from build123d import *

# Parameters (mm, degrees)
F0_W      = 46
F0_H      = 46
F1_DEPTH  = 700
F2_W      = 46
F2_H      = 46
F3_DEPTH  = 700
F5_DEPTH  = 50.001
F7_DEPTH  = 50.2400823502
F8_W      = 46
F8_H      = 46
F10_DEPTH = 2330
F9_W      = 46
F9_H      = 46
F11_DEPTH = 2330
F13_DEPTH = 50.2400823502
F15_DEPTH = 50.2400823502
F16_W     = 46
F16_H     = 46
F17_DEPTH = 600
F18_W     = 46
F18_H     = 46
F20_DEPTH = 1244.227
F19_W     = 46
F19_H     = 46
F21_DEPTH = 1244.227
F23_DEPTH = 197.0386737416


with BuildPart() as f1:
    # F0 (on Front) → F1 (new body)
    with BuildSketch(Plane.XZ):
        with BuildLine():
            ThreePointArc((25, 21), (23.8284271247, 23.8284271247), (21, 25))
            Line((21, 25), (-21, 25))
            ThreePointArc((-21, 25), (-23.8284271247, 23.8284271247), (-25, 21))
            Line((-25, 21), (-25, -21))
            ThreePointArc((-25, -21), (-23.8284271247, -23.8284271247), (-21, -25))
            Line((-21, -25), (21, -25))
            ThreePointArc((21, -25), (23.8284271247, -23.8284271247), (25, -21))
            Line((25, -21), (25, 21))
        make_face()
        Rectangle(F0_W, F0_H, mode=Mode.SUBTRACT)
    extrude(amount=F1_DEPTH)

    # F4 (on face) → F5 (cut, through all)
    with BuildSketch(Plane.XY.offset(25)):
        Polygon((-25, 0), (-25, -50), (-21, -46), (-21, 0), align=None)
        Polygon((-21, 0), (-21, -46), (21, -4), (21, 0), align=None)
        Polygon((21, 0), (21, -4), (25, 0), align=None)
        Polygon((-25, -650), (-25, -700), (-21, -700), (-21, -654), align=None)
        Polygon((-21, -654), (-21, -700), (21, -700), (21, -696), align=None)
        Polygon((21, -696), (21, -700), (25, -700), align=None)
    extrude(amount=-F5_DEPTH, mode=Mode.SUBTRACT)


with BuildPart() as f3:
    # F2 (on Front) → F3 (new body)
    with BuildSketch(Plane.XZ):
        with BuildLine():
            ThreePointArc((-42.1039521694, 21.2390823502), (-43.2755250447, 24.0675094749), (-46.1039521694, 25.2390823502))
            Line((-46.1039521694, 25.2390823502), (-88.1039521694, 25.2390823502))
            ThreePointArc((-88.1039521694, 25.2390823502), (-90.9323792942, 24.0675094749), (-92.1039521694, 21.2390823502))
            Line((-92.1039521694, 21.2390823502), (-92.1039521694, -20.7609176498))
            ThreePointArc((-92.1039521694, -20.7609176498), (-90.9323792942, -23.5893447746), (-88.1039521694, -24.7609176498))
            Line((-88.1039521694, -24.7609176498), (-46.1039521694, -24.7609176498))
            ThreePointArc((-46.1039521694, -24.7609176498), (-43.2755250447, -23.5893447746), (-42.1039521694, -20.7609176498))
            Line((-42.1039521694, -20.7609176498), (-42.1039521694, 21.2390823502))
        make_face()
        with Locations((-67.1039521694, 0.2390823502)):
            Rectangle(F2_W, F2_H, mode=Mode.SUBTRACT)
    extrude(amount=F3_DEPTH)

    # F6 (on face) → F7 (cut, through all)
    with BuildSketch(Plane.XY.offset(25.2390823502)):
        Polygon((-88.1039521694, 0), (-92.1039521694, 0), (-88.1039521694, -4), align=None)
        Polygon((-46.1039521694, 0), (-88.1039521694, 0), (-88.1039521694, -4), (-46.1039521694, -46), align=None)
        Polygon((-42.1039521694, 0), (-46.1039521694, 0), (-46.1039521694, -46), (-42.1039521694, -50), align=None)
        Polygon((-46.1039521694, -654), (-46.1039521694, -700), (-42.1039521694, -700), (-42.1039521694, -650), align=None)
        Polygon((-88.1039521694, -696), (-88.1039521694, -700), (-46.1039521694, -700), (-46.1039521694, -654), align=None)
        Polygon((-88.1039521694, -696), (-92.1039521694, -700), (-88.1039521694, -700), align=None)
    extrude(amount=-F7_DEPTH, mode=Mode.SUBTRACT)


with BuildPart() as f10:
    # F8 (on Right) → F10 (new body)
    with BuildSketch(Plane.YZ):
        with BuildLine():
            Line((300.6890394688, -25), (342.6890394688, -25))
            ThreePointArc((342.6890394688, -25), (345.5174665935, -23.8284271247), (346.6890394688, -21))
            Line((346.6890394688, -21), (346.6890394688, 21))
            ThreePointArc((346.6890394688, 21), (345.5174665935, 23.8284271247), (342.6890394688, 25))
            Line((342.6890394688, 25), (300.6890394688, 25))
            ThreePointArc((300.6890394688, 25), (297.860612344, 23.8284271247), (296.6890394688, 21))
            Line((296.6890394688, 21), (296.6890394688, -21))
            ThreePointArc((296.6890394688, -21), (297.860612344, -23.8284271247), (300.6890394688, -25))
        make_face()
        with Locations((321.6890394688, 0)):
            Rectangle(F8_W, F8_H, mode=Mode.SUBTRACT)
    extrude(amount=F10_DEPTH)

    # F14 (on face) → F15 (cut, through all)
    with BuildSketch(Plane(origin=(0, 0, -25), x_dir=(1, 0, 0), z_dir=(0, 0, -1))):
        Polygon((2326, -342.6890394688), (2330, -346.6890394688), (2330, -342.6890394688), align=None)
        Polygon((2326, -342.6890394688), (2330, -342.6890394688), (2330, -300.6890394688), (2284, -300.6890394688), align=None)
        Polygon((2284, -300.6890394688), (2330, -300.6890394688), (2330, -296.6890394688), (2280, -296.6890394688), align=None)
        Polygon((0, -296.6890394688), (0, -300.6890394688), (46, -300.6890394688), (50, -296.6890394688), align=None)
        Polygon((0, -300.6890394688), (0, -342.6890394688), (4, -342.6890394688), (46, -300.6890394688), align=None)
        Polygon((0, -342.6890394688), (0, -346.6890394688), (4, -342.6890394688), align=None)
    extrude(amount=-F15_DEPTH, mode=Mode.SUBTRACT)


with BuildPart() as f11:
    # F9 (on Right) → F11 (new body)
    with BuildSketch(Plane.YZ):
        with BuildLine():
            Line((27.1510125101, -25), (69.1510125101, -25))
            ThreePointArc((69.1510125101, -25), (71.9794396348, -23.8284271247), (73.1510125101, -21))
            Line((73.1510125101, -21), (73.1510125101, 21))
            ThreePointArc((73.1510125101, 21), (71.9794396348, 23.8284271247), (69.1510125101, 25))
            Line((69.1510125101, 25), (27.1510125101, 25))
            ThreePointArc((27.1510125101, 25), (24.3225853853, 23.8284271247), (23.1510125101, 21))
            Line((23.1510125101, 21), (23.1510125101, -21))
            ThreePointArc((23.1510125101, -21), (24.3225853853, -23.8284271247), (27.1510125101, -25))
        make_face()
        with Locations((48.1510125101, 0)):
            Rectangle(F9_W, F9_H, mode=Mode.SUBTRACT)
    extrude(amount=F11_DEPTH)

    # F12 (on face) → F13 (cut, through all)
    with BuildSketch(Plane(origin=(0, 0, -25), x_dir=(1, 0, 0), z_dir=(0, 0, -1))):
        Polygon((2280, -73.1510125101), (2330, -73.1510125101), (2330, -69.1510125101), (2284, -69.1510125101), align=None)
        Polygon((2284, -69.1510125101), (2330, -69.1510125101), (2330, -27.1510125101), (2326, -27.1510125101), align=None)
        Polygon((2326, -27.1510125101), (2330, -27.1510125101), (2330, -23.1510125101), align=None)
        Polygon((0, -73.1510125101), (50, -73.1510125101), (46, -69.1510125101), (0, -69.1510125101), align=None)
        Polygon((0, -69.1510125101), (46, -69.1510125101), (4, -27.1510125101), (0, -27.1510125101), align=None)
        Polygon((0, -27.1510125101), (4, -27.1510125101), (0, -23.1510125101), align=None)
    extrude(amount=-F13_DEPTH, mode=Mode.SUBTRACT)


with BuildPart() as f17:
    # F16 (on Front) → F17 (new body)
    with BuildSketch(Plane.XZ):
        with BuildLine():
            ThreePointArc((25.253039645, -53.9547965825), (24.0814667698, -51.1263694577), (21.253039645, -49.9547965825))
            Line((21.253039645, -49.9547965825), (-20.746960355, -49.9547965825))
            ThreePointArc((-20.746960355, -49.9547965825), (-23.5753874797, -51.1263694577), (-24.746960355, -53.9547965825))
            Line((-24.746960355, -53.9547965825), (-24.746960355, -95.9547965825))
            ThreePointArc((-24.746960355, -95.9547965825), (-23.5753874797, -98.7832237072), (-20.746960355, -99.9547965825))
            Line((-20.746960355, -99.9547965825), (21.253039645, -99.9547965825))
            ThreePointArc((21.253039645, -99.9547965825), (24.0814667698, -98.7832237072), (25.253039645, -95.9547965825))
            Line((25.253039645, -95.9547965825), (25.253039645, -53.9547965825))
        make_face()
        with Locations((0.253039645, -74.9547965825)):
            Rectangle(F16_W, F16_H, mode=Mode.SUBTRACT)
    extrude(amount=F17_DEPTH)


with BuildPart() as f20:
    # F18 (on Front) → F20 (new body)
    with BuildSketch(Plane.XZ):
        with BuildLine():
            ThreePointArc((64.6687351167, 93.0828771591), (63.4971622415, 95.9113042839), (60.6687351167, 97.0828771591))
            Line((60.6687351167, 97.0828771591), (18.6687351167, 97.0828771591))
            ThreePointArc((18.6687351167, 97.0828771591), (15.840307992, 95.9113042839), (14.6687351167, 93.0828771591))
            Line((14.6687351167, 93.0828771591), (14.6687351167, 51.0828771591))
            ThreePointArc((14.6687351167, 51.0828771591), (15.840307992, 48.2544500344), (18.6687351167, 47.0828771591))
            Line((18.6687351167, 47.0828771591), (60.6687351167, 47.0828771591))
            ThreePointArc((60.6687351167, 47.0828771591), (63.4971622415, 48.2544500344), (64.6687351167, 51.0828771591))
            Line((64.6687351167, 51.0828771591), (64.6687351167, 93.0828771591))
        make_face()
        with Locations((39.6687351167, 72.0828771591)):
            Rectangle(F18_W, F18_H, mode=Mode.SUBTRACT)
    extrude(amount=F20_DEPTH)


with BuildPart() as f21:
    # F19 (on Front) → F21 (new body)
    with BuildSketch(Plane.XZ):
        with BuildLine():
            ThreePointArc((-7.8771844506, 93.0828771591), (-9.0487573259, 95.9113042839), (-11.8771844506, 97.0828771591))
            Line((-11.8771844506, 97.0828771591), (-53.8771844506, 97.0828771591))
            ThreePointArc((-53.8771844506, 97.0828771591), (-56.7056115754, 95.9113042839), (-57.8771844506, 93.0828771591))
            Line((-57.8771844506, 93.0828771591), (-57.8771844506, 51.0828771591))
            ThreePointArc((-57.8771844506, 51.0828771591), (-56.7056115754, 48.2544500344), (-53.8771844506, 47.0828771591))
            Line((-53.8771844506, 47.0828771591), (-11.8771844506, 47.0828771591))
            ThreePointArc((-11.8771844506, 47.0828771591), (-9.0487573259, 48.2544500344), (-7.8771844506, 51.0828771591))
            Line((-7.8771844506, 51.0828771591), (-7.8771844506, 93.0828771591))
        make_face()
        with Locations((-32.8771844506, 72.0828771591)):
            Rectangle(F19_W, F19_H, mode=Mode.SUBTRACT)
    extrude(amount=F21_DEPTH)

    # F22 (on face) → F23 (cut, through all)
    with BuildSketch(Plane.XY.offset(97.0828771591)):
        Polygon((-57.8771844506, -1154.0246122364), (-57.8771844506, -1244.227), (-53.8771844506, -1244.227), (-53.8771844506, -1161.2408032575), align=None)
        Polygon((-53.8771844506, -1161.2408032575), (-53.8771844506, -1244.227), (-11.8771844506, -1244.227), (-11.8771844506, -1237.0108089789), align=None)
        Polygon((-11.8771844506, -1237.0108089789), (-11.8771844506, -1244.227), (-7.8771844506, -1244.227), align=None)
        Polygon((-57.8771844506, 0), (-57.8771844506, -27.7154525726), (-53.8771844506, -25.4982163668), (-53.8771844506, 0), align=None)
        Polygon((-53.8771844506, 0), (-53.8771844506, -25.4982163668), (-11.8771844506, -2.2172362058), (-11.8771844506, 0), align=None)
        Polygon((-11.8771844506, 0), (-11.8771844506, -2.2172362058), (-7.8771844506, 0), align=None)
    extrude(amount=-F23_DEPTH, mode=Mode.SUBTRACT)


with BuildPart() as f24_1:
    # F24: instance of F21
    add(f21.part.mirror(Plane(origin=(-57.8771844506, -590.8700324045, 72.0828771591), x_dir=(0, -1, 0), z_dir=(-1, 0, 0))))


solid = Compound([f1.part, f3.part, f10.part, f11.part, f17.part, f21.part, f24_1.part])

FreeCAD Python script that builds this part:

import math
import FreeCAD as App
import Part
import Sketcher
Q = App.Units.Quantity

doc = App.newDocument("Part")
params = doc.addObject("Spreadsheet::Sheet", "Params")
for row, (alias, value) in enumerate([
    ("sketch1_radius", "4 mm"),
    ("sketch1_width", "42 mm"),
    ("sketch1_width2", "46 mm"),
    ("pad1_length", "700 mm"),
    ("sketch2_width", "50 mm"),
    ("sketch3_radius", "4 mm"),
    ("sketch3_width", "42 mm"),
    ("sketch3_width2", "46 mm"),
    ("pad2_length", "700 mm"),
    ("sketch4_width", "50 mm"),
    ("sketch5_radius", "4 mm"),
    ("sketch5_width", "42 mm"),
    ("sketch5_width2", "46 mm"),
    ("pad3_length", "2330 mm"),
    ("sketch6_width", "50 mm"),
    ("sketch7_radius", "4 mm"),
    ("sketch7_width", "42 mm"),
    ("sketch7_width2", "46 mm"),
    ("pad4_length", "2330 mm"),
    ("sketch8_width", "50 mm"),
    ("sketch9_radius", "4 mm"),
    ("sketch9_width", "42 mm"),
    ("sketch9_width2", "46 mm"),
    ("pad5_length", "600 mm"),
    ("sketch10_radius", "4 mm"),
    ("sketch10_width", "42 mm"),
    ("sketch10_width2", "46 mm"),
    ("pad6_length", "1244.227 mm"),
    ("sketch11_radius", "4 mm"),
    ("sketch11_width", "42 mm"),
    ("sketch11_width2", "46 mm"),
    ("pad7_length", "1244.227 mm"),
    ("sketch12_width", "50 mm"),
], start=1):
    params.set(f"A{row}", alias)
    params.set(f"B{row}", "=" + value)
    params.setAlias(f"B{row}", alias)

body = doc.addObject("PartDesign::Body", "Body")

sketch1 = body.newObject("Sketcher::SketchObject", "Sketch")
sketch1.AttachmentSupport = (doc.getObject("XZ_Plane"), [""])
sketch1.MapMode = "FlatFace"
sketch1.addGeometry(Part.ArcOfCircle(Part.Circle(App.Vector(21, 21, 0), App.Vector(0, 0, 1), 4), math.radians(0), math.radians(90)), False)
sketch1.addGeometry(Part.LineSegment(App.Vector(21, 25, 0), App.Vector(-21, 25, 0)), False)
sketch1.addGeometry(Part.ArcOfCircle(Part.Circle(App.Vector(-21, 21, 0), App.Vector(0, 0, 1), 4), math.radians(90), math.radians(180)), False)
sketch1.addGeometry(Part.LineSegment(App.Vector(-25, 21, 0), App.Vector(-25, -21, 0)), False)
sketch1.addGeometry(Part.ArcOfCircle(Part.Circle(App.Vector(-21, -21, 0), App.Vector(0, 0, 1), 4), math.radians(180), math.radians(270)), False)
sketch1.addGeometry(Part.LineSegment(App.Vector(-21, -25, 0), App.Vector(21, -25, 0)), False)
sketch1.addGeometry(Part.ArcOfCircle(Part.Circle(App.Vector(21, -21, 0), App.Vector(0, 0, 1), 4), math.radians(-90), math.radians(0)), False)
sketch1.addGeometry(Part.LineSegment(App.Vector(25, -21, 0), App.Vector(25, 21, 0)), False)
sketch1.addGeometry(Part.LineSegment(App.Vector(23, -23, 0), App.Vector(-23, -23, 0)), False)
sketch1.addGeometry(Part.LineSegment(App.Vector(-23, -23, 0), App.Vector(-23, 23, 0)), False)
sketch1.addGeometry(Part.LineSegment(App.Vector(-23, 23, 0), App.Vector(23, 23, 0)), False)
sketch1.addGeometry(Part.LineSegment(App.Vector(23, 23, 0), App.Vector(23, -23, 0)), False)
sketch1.addConstraint(Sketcher.Constraint("Tangent", 0, 2, 1, 1))
sketch1.addConstraint(Sketcher.Constraint("Tangent", 1, 2, 2, 1))
sketch1.addConstraint(Sketcher.Constraint("Tangent", 2, 2, 3, 1))
sketch1.addConstraint(Sketcher.Constraint("Tangent", 3, 2, 4, 1))
sketch1.addConstraint(Sketcher.Constraint("Tangent", 4, 2, 5, 1))
sketch1.addConstraint(Sketcher.Constraint("Tangent", 5, 2, 6, 1))
sketch1.addConstraint(Sketcher.Constraint("Tangent", 6, 2, 7, 1))
sketch1.addConstraint(Sketcher.Constraint("Tangent", 7, 2, 0, 1))
sketch1.addConstraint(Sketcher.Constraint("Coincident", 8, 2, 9, 1))
sketch1.addConstraint(Sketcher.Constraint("Coincident", 9, 2, 10, 1))
sketch1.addConstraint(Sketcher.Constraint("Coincident", 10, 2, 11, 1))
sketch1.addConstraint(Sketcher.Constraint("Coincident", 11, 2, 8, 1))
sketch1.addConstraint(Sketcher.Constraint("Horizontal", 1))
sketch1.addConstraint(Sketcher.Constraint("Vertical", 3))
sketch1.addConstraint(Sketcher.Constraint("Horizontal", 5))
sketch1.addConstraint(Sketcher.Constraint("Vertical", 7))
sketch1.addConstraint(Sketcher.Constraint("Horizontal", 8))
sketch1.addConstraint(Sketcher.Constraint("Vertical", 9))
sketch1.addConstraint(Sketcher.Constraint("Horizontal", 10))
sketch1.addConstraint(Sketcher.Constraint("Vertical", 11))
sketch1.addConstraint(Sketcher.Constraint("Equal", 0, 2))
sketch1.addConstraint(Sketcher.Constraint("Equal", 2, 4))
sketch1.addConstraint(Sketcher.Constraint("Equal", 4, 6))
sketch1.addConstraint(Sketcher.Constraint("Symmetric", 0, 3, 4, 3, -1, 1))
sketch1.addConstraint(Sketcher.Constraint("Symmetric", 8, 2, 10, 2, -1, 1))
sketch1.addConstraint(Sketcher.Constraint("Equal", 5, 3))
sketch1.addConstraint(Sketcher.Constraint("Equal", 10, 9))
sketch1.addConstraint(Sketcher.Constraint("Radius", 0, 4.0))
sketch1.addConstraint(Sketcher.Constraint("DistanceX", 1, 2, 1, 1, 42.0))
sketch1.addConstraint(Sketcher.Constraint("DistanceX", 8, 2, 8, 1, 46.0))
sketch1.setExpression("Constraints[27]", "Params.sketch1_radius")
sketch1.setExpression("Constraints[28]", "Params.sketch1_width")
sketch1.setExpression("Constraints[29]", "Params.sketch1_width2")
pad1 = body.newObject("PartDesign::Pad", "Pad")
pad1.Profile = sketch1
pad1.setExpression("Length", "Params.pad1_length")

sketch2 = body.newObject("Sketcher::SketchObject", "Sketch001")
sketch2.AttachmentSupport = (doc.getObject("XY_Plane"), [""])
sketch2.MapMode = "FlatFace"
sketch2.AttachmentOffset = App.Placement(App.Vector(0, 0, 25), App.Rotation())
sketch2.addGeometry(Part.LineSegment(App.Vector(-25, 0, 0), App.Vector(-25, -50, 0)), False)
sketch2.addGeometry(Part.LineSegment(App.Vector(-25, -50, 0), App.Vector(25, 0, 0)), False)
sketch2.addGeometry(Part.LineSegment(App.Vector(25, 0, 0), App.Vector(-25, 0, 0)), False)
sketch2.addGeometry(Part.LineSegment(App.Vector(-25, -650, 0), App.Vector(-25, -700, 0)), False)
sketch2.addGeometry(Part.LineSegment(App.Vector(-25, -700, 0), App.Vector(25, -700, 0)), False)
sketch2.addGeometry(Part.LineSegment(App.Vector(25, -700, 0), App.Vector(-25, -650, 0)), False)
sketch2.addConstraint(Sketcher.Constraint("Coincident", 0, 2, 1, 1))
sketch2.addConstraint(Sketcher.Constraint("Coincident", 1, 2, 2, 1))
sketch2.addConstraint(Sketcher.Constraint("Coincident", 2, 2, 0, 1))
sketch2.addConstraint(Sketcher.Constraint("Coincident", 3, 2, 4, 1))
sketch2.addConstraint(Sketcher.Constraint("Coincident", 4, 2, 5, 1))
sketch2.addConstraint(Sketcher.Constraint("Coincident", 5, 2, 3, 1))
sketch2.addConstraint(Sketcher.Constraint("Vertical", 0))
sketch2.addConstraint(Sketcher.Constraint("Horizontal", 2))
sketch2.addConstraint(Sketcher.Constraint("Vertical", 3))
sketch2.addConstraint(Sketcher.Constraint("Horizontal", 4))
sketch2.addConstraint(Sketcher.Constraint("Symmetric", 1, 2, 2, 2, -1, 1))
sketch2.addConstraint(Sketcher.Constraint("Perpendicular", 1, 5))
sketch2.addConstraint(Sketcher.Constraint("Vertical", 2, 2, 3, 2))
sketch2.addConstraint(Sketcher.Constraint("Vertical", 1, 2, 4, 2))
sketch2.addConstraint(Sketcher.Constraint("Equal", 4, 0))
sketch2.addConstraint(Sketcher.Constraint("DistanceX", 2, 2, 2, 1, 50.0))
sketch2.addConstraint(Sketcher.Constraint("DistanceY", 3, 2, -1, 1, 700.0))
sketch2.setExpression("Constraints[15]", "Params.sketch2_width")
pocket1 = body.newObject("PartDesign::Pocket", "Pocket")
pocket1.Profile = sketch2
pocket1.Type = "ThroughAll"
body2 = doc.addObject("PartDesign::Body", "Body001")

sketch3 = body2.newObject("Sketcher::SketchObject", "Sketch002")
sketch3.AttachmentSupport = (doc.getObject("XZ_Plane001"), [""])
sketch3.MapMode = "FlatFace"
sketch3.addGeometry(Part.ArcOfCircle(Part.Circle(App.Vector(-46.1, 21.2, 0), App.Vector(0, 0, 1), 4), math.radians(0), math.radians(90)), False)
sketch3.addGeometry(Part.LineSegment(App.Vector(-46.1, 25.2, 0), App.Vector(-88.1, 25.2, 0)), False)
sketch3.addGeometry(Part.ArcOfCircle(Part.Circle(App.Vector(-88.1, 21.2, 0), App.Vector(0, 0, 1), 4), math.radians(90), math.radians(180)), False)
sketch3.addGeometry(Part.LineSegment(App.Vector(-92.1, 21.2, 0), App.Vector(-92.1, -20.8, 0)), False)
sketch3.addGeometry(Part.ArcOfCircle(Part.Circle(App.Vector(-88.1, -20.8, 0), App.Vector(0, 0, 1), 4), math.radians(180), math.radians(270)), False)
sketch3.addGeometry(Part.LineSegment(App.Vector(-88.1, -24.8, 0), App.Vector(-46.1, -24.8, 0)), False)
sketch3.addGeometry(Part.ArcOfCircle(Part.Circle(App.Vector(-46.1, -20.8, 0), App.Vector(0, 0, 1), 4), math.radians(-90), math.radians(0)), False)
sketch3.addGeometry(Part.LineSegment(App.Vector(-42.1, -20.8, 0), App.Vector(-42.1, 21.2, 0)), False)
sketch3.addGeometry(Part.LineSegment(App.Vector(-44.1, -22.8, 0), App.Vector(-90.1, -22.8, 0)), False)
sketch3.addGeometry(Part.LineSegment(App.Vector(-90.1, -22.8, 0), App.Vector(-90.1, 23.2, 0)), False)
sketch3.addGeometry(Part.LineSegment(App.Vector(-90.1, 23.2, 0), App.Vector(-44.1, 23.2, 0)), False)
sketch3.addGeometry(Part.LineSegment(App.Vector(-44.1, 23.2, 0), App.Vector(-44.1, -22.8, 0)), False)
sketch3.addConstraint(Sketcher.Constraint("Tangent", 0, 2, 1, 1))
sketch3.addConstraint(Sketcher.Constraint("Tangent", 1, 2, 2, 1))
sketch3.addConstraint(Sketcher.Constraint("Tangent", 2, 2, 3, 1))
sketch3.addConstraint(Sketcher.Constraint("Tangent", 3, 2, 4, 1))
sketch3.addConstraint(Sketcher.Constraint("Tangent", 4, 2, 5, 1))
sketch3.addConstraint(Sketcher.Constraint("Tangent", 5, 2, 6, 1))
sketch3.addConstraint(Sketcher.Constraint("Tangent", 6, 2, 7, 1))
sketch3.addConstraint(Sketcher.Constraint("Tangent", 7, 2, 0, 1))
sketch3.addConstraint(Sketcher.Constraint("Coincident", 8, 2, 9, 1))
sketch3.addConstraint(Sketcher.Constraint("Coincident", 9, 2, 10, 1))
sketch3.addConstraint(Sketcher.Constraint("Coincident", 10, 2, 11, 1))
sketch3.addConstraint(Sketcher.Constraint("Coincident", 11, 2, 8, 1))
sketch3.addConstraint(Sketcher.Constraint("Horizontal", 1))
sketch3.addConstraint(Sketcher.Constraint("Vertical", 3))
sketch3.addConstraint(Sketcher.Constraint("Horizontal", 5))
sketch3.addConstraint(Sketcher.Constraint("Vertical", 7))
sketch3.addConstraint(Sketcher.Constraint("Horizontal", 8))
sketch3.addConstraint(Sketcher.Constraint("Vertical", 9))
sketch3.addConstraint(Sketcher.Constraint("Horizontal", 10))
sketch3.addConstraint(Sketcher.Constraint("Vertical", 11))
sketch3.addConstraint(Sketcher.Constraint("Equal", 0, 2))
sketch3.addConstraint(Sketcher.Constraint("Equal", 2, 4))
sketch3.addConstraint(Sketcher.Constraint("Equal", 4, 6))
sketch3.addConstraint(Sketcher.Constraint("Equal", 5, 3))
sketch3.addConstraint(Sketcher.Constraint("Equal", 10, 9))
sketch3.addConstraint(Sketcher.Constraint("Radius", 0, 4.0))
sketch3.addConstraint(Sketcher.Constraint("DistanceX", 1, 2, 1, 1, 42.0))
sketch3.addConstraint(Sketcher.Constraint("DistanceX", 8, 2, 8, 1, 46.0))
sketch3.addConstraint(Sketcher.Constraint("DistanceX", 8, 2, 4, 3, 2.0))
sketch3.addConstraint(Sketcher.Constraint("DistanceY", 8, 2, 4, 3, 2.0))
sketch3.addConstraint(Sketcher.Constraint("DistanceX", 0, 3, -1, 1, 46.103952))
sketch3.addConstraint(Sketcher.Constraint("DistanceY", -1, 1, 0, 3, 21.239082))
sketch3.setExpression("Constraints[25]", "Params.sketch3_radius")
sketch3.setExpression("Constraints[26]", "Params.sketch3_width")
sketch3.setExpression("Constraints[27]", "Params.sketch3_width2")
pad2 = body2.newObject("PartDesign::Pad", "Pad001")
pad2.Profile = sketch3
pad2.setExpression("Length", "Params.pad2_length")

sketch4 = body2.newObject("Sketcher::SketchObject", "Sketch003")
sketch4.AttachmentSupport = (doc.getObject("XY_Plane001"), [""])
sketch4.MapMode = "FlatFace"
sketch4.AttachmentOffset = App.Placement(App.Vector(0, 0, 25.239082), App.Rotation())
sketch4.addGeometry(Part.LineSegment(App.Vector(-92, 0, 0), App.Vector(-42, -50, 0)), False)
sketch4.addGeometry(Part.LineSegment(App.Vector(-42, -50, 0), App.Vector(-42, 0, 0)), False)
sketch4.addGeometry(Part.LineSegment(App.Vector(-42, 0, 0), App.Vector(-92, 0, 0)), False)
sketch4.addGeometry(Part.LineSegment(App.Vector(-42, -700, 0), App.Vector(-42, -650, 0)), False)
sketch4.addGeometry(Part.LineSegment(App.Vector(-42, -650, 0), App.Vector(-92, -700, 0)), False)
sketch4.addGeometry(Part.LineSegment(App.Vector(-92, -700, 0), App.Vector(-42, -700, 0)), False)
sketch4.addConstraint(Sketcher.Constraint("Coincident", 0, 2, 1, 1))
sketch4.addConstraint(Sketcher.Constraint("Coincident", 1, 2, 2, 1))
sketch4.addConstraint(Sketcher.Constraint("Coincident", 2, 2, 0, 1))
sketch4.addConstraint(Sketcher.Constraint("Coincident", 3, 2, 4, 1))
sketch4.addConstraint(Sketcher.Constraint("Coincident", 4, 2, 5, 1))
sketch4.addConstraint(Sketcher.Constraint("Coincident", 5, 2, 3, 1))
sketch4.addConstraint(Sketcher.Constraint("Vertical", 1))
sketch4.addConstraint(Sketcher.Constraint("Horizontal", 2))
sketch4.addConstraint(Sketcher.Constraint("Vertical", 3))
sketch4.addConstraint(Sketcher.Constraint("Horizontal", 5))
sketch4.addConstraint(Sketcher.Constraint("PointOnObject", 1, 2, -1))
sketch4.addConstraint(Sketcher.Constraint("Perpendicular", 0, 4))
sketch4.addConstraint(Sketcher.Constraint("Vertical", 1, 2, 3, 2))
sketch4.addConstraint(Sketcher.Constraint("Vertical", 2, 2, 4, 2))
sketch4.addConstraint(Sketcher.Constraint("Equal", 5, 1))
sketch4.addConstraint(Sketcher.Constraint("DistanceX", 2, 2, 2, 1, 50.0))
sketch4.addConstraint(Sketcher.Constraint("DistanceY", 3, 2, -1, 1, 650.0))
sketch4.addConstraint(Sketcher.Constraint("DistanceX", 0, 2, -1, 1, 42.103952))
sketch4.setExpression("Constraints[15]", "Params.sketch4_width")
pocket2 = body2.newObject("PartDesign::Pocket", "Pocket001")
pocket2.Profile = sketch4
pocket2.Type = "ThroughAll"
body3 = doc.addObject("PartDesign::Body", "Body002")

sketch5 = body3.newObject("Sketcher::SketchObject", "Sketch004")
sketch5.AttachmentSupport = (doc.getObject("YZ_Plane002"), [""])
sketch5.MapMode = "FlatFace"
sketch5.addGeometry(Part.LineSegment(App.Vector(300.7, -25, 0), App.Vector(342.7, -25, 0)), False)
sketch5.addGeometry(Part.ArcOfCircle(Part.Circle(App.Vector(342.7, -21, 0), App.Vector(0, 0, 1), 4), math.radians(-90), math.radians(0)), False)
sketch5.addGeometry(Part.LineSegment(App.Vector(346.7, -21, 0), App.Vector(346.7, 21, 0)), False)
sketch5.addGeometry(Part.ArcOfCircle(Part.Circle(App.Vector(342.7, 21, 0), App.Vector(0, 0, 1), 4), math.radians(0), math.radians(90)), False)
sketch5.addGeometry(Part.LineSegment(App.Vector(342.7, 25, 0), App.Vector(300.7, 25, 0)), False)
sketch5.addGeometry(Part.ArcOfCircle(Part.Circle(App.Vector(300.7, 21, 0), App.Vector(0, 0, 1), 4), math.radians(90), math.radians(180)), False)
sketch5.addGeometry(Part.LineSegment(App.Vector(296.7, 21, 0), App.Vector(296.7, -21, 0)), False)
sketch5.addGeometry(Part.ArcOfCircle(Part.Circle(App.Vector(300.7, -21, 0), App.Vector(0, 0, 1), 4), math.radians(180), math.radians(270)), False)
sketch5.addGeometry(Part.LineSegment(App.Vector(344.7, -23, 0), App.Vector(298.7, -23, 0)), False)
sketch5.addGeometry(Part.LineSegment(App.Vector(298.7, -23, 0), App.Vector(298.7, 23, 0)), False)
sketch5.addGeometry(Part.LineSegment(App.Vector(298.7, 23, 0), App.Vector(344.7, 23, 0)), False)
sketch5.addGeometry(Part.LineSegment(App.Vector(344.7, 23, 0), App.Vector(344.7, -23, 0)), False)
sketch5.addConstraint(Sketcher.Constraint("Tangent", 0, 2, 1, 1))
sketch5.addConstraint(Sketcher.Constraint("Tangent", 1, 2, 2, 1))
sketch5.addConstraint(Sketcher.Constraint("Tangent", 2, 2, 3, 1))
sketch5.addConstraint(Sketcher.Constraint("Tangent", 3, 2, 4, 1))
sketch5.addConstraint(Sketcher.Constraint("Tangent", 4, 2, 5, 1))
sketch5.addConstraint(Sketcher.Constraint("Tangent", 5, 2, 6, 1))
sketch5.addConstraint(Sketcher.Constraint("Tangent", 6, 2, 7, 1))
sketch5.addConstraint(Sketcher.Constraint("Tangent", 7, 2, 0, 1))
sketch5.addConstraint(Sketcher.Constraint("Coincident", 8, 2, 9, 1))
sketch5.addConstraint(Sketcher.Constraint("Coincident", 9, 2, 10, 1))
sketch5.addConstraint(Sketcher.Constraint("Coincident", 10, 2, 11, 1))
sketch5.addConstraint(Sketcher.Constraint("Coincident", 11, 2, 8, 1))
sketch5.addConstraint(Sketcher.Constraint("Horizontal", 0))
sketch5.addConstraint(Sketcher.Constraint("Vertical", 2))
sketch5.addConstraint(Sketcher.Constraint("Horizontal", 4))
sketch5.addConstraint(Sketcher.Constraint("Vertical", 6))
sketch5.addConstraint(Sketcher.Constraint("Horizontal", 8))
sketch5.addConstraint(Sketcher.Constraint("Vertical", 9))
sketch5.addConstraint(Sketcher.Constraint("Horizontal", 10))
sketch5.addConstraint(Sketcher.Constraint("Vertical", 11))
sketch5.addConstraint(Sketcher.Constraint("Equal", 1, 3))
sketch5.addConstraint(Sketcher.Constraint("Equal", 3, 5))
sketch5.addConstraint(Sketcher.Constraint("Equal", 5, 7))
sketch5.addConstraint(Sketcher.Constraint("Equal", 4, 2))
sketch5.addConstraint(Sketcher.Constraint("Equal", 10, 9))
sketch5.addConstraint(Sketcher.Constraint("Radius", 1, 4.0))
sketch5.addConstraint(Sketcher.Constraint("DistanceX", 0, 1, 0, 2, 42.0))
sketch5.addConstraint(Sketcher.Constraint("DistanceX", 8, 2, 8, 1, 46.0))
sketch5.addConstraint(Sketcher.Constraint("DistanceY", 1, 3, -1, 1, 21.0))
sketch5.addConstraint(Sketcher.Constraint("DistanceY", 8, 2, -1, 1, 23.0))
sketch5.addConstraint(Sketcher.Constraint("DistanceX", 8, 2, 7, 3, 2.0))
sketch5.addConstraint(Sketcher.Constraint("DistanceX", -1, 1, 1, 3, 342.689039))
sketch5.setExpression("Constraints[25]", "Params.sketch5_radius")
sketch5.setExpression("Constraints[26]", "Params.sketch5_width")
sketch5.setExpression("Constraints[27]", "Params.sketch5_width2")
pad3 = body3.newObject("PartDesign::Pad", "Pad002")
pad3.Profile = sketch5
pad3.setExpression("Length", "Params.pad3_length")

sketch6 = body3.newObject("Sketcher::SketchObject", "Sketch005")
sketch6.AttachmentSupport = (doc.getObject("XY_Plane002"), [""])
sketch6.MapMode = "FlatFace"
sketch6.AttachmentOffset = App.Placement(App.Vector(0, 0, -25), App.Rotation())
sketch6.addGeometry(Part.LineSegment(App.Vector(2330, 347, 0), App.Vector(2330, 297, 0)), False)
sketch6.addGeometry(Part.LineSegment(App.Vector(2330, 297, 0), App.Vector(2280, 297, 0)), False)
sketch6.addGeometry(Part.LineSegment(App.Vector(2280, 297, 0), App.Vector(2330, 347, 0)), False)
sketch6.addGeometry(Part.LineSegment(App.Vector(0, 297, 0), App.Vector(0, 347, 0)), False)
sketch6.addGeometry(Part.LineSegment(App.Vector(0, 347, 0), App.Vector(50, 297, 0)), False)
sketch6.addGeometry(Part.LineSegment(App.Vector(50, 297, 0), App.Vector(0, 297, 0)), False)
sketch6.addConstraint(Sketcher.Constraint("Coincident", 0, 2, 1, 1))
sketch6.addConstraint(Sketcher.Constraint("Coincident", 1, 2, 2, 1))
sketch6.addConstraint(Sketcher.Constraint("Coincident", 2, 2, 0, 1))
sketch6.addConstraint(Sketcher.Constraint("Coincident", 3, 2, 4, 1))
sketch6.addConstraint(Sketcher.Constraint("Coincident", 4, 2, 5, 1))
sketch6.addConstraint(Sketcher.Constraint("Coincident", 5, 2, 3, 1))
sketch6.addConstraint(Sketcher.Constraint("Vertical", 0))
sketch6.addConstraint(Sketcher.Constraint("Horizontal", 1))
sketch6.addConstraint(Sketcher.Constraint("Vertical", 3))
sketch6.addConstraint(Sketcher.Constraint("Horizontal", 5))
sketch6.addConstraint(Sketcher.Constraint("PointOnObject", 3, 2, -2))
sketch6.addConstraint(Sketcher.Constraint("Perpendicular", 2, 4))
sketch6.addConstraint(Sketcher.Constraint("Horizontal", 2, 2, 3, 2))
sketch6.addConstraint(Sketcher.Constraint("Horizontal", 1, 2, 4, 2))
sketch6.addConstraint(Sketcher.Constraint("Equal", 1, 5))
sketch6.addConstraint(Sketcher.Constraint("DistanceX", 1, 2, 1, 1, 50.0))
sketch6.addConstraint(Sketcher.Constraint("DistanceX", -1, 1, 0, 2, 2330.0))
sketch6.addConstraint(Sketcher.Constraint("DistanceY", -1, 1, 0, 2, 296.689039))
sketch6.setExpression("Constraints[15]", "Params.sketch6_width")
pocket3 = body3.newObject("PartDesign::Pocket", "Pocket002")
pocket3.Profile = sketch6
pocket3.Type = "ThroughAll"
pocket3.Reversed = True
body4 = doc.addObject("PartDesign::Body", "Body003")

sketch7 = body4.newObject("Sketcher::SketchObject", "Sketch006")
sketch7.AttachmentSupport = (doc.getObject("YZ_Plane003"), [""])
sketch7.MapMode = "FlatFace"
sketch7.addGeometry(Part.LineSegment(App.Vector(27.2, -25, 0), App.Vector(69.2, -25, 0)), False)
sketch7.addGeometry(Part.ArcOfCircle(Part.Circle(App.Vector(69.2, -21, 0), App.Vector(0, 0, 1), 4), math.radians(-90), math.radians(0)), False)
sketch7.addGeometry(Part.LineSegment(App.Vector(73.2, -21, 0), App.Vector(73.2, 21, 0)), False)
sketch7.addGeometry(Part.ArcOfCircle(Part.Circle(App.Vector(69.2, 21, 0), App.Vector(0, 0, 1), 4), math.radians(0), math.radians(90)), False)
sketch7.addGeometry(Part.LineSegment(App.Vector(69.2, 25, 0), App.Vector(27.2, 25, 0)), False)
sketch7.addGeometry(Part.ArcOfCircle(Part.Circle(App.Vector(27.2, 21, 0), App.Vector(0, 0, 1), 4), math.radians(90), math.radians(180)), False)
sketch7.addGeometry(Part.LineSegment(App.Vector(23.2, 21, 0), App.Vector(23.2, -21, 0)), False)
sketch7.addGeometry(Part.ArcOfCircle(Part.Circle(App.Vector(27.2, -21, 0), App.Vector(0, 0, 1), 4), math.radians(180), math.radians(270)), False)
sketch7.addGeometry(Part.LineSegment(App.Vector(71.2, -23, 0), App.Vector(25.2, -23, 0)), False)
sketch7.addGeometry(Part.LineSegment(App.Vector(25.2, -23, 0), App.Vector(25.2, 23, 0)), False)
sketch7.addGeometry(Part.LineSegment(App.Vector(25.2, 23, 0), App.Vector(71.2, 23, 0)), False)
sketch7.addGeometry(Part.LineSegment(App.Vector(71.2, 23, 0), App.Vector(71.2, -23, 0)), False)
sketch7.addConstraint(Sketcher.Constraint("Tangent", 0, 2, 1, 1))
sketch7.addConstraint(Sketcher.Constraint("Tangent", 1, 2, 2, 1))
sketch7.addConstraint(Sketcher.Constraint("Tangent", 2, 2, 3, 1))
sketch7.addConstraint(Sketcher.Constraint("Tangent", 3, 2, 4, 1))
sketch7.addConstraint(Sketcher.Constraint("Tangent", 4, 2, 5, 1))
sketch7.addConstraint(Sketcher.Constraint("Tangent", 5, 2, 6, 1))
sketch7.addConstraint(Sketcher.Constraint("Tangent", 6, 2, 7, 1))
sketch7.addConstraint(Sketcher.Constraint("Tangent", 7, 2, 0, 1))
sketch7.addConstraint(Sketcher.Constraint("Coincident", 8, 2, 9, 1))
sketch7.addConstraint(Sketcher.Constraint("Coincident", 9, 2, 10, 1))
sketch7.addConstraint(Sketcher.Constraint("Coincident", 10, 2, 11, 1))
sketch7.addConstraint(Sketcher.Constraint("Coincident", 11, 2, 8, 1))
sketch7.addConstraint(Sketcher.Constraint("Horizontal", 0))
sketch7.addConstraint(Sketcher.Constraint("Vertical", 2))
sketch7.addConstraint(Sketcher.Constraint("Horizontal", 4))
sketch7.addConstraint(Sketcher.Constraint("Vertical", 6))
sketch7.addConstraint(Sketcher.Constraint("Horizontal", 8))
sketch7.addConstraint(Sketcher.Constraint("Vertical", 9))
sketch7.addConstraint(Sketcher.Constraint("Horizontal", 10))
sketch7.addConstraint(Sketcher.Constraint("Vertical", 11))
sketch7.addConstraint(Sketcher.Constraint("Equal", 1, 3))
sketch7.addConstraint(Sketcher.Constraint("Equal", 3, 5))
sketch7.addConstraint(Sketcher.Constraint("Equal", 5, 7))
sketch7.addConstraint(Sketcher.Constraint("Equal", 4, 2))
sketch7.addConstraint(Sketcher.Constraint("Equal", 10, 9))
sketch7.addConstraint(Sketcher.Constraint("Radius", 1, 4.0))
sketch7.addConstraint(Sketcher.Constraint("DistanceX", 0, 1, 0, 2, 42.0))
sketch7.addConstraint(Sketcher.Constraint("DistanceX", 8, 2, 8, 1, 46.0))
sketch7.addConstraint(Sketcher.Constraint("DistanceY", 1, 3, -1, 1, 21.0))
sketch7.addConstraint(Sketcher.Constraint("DistanceY", 8, 2, -1, 1, 23.0))
sketch7.addConstraint(Sketcher.Constraint("DistanceX", 8, 2, 7, 3, 2.0))
sketch7.addConstraint(Sketcher.Constraint("DistanceX", -1, 1, 1, 3, 69.151013))
sketch7.setExpression("Constraints[25]", "Params.sketch7_radius")
sketch7.setExpression("Constraints[26]", "Params.sketch7_width")
sketch7.setExpression("Constraints[27]", "Params.sketch7_width2")
pad4 = body4.newObject("PartDesign::Pad", "Pad003")
pad4.Profile = sketch7
pad4.setExpression("Length", "Params.pad4_length")

sketch8 = body4.newObject("Sketcher::SketchObject", "Sketch007")
sketch8.AttachmentSupport = (doc.getObject("XY_Plane003"), [""])
sketch8.MapMode = "FlatFace"
sketch8.AttachmentOffset = App.Placement(App.Vector(0, 0, -25), App.Rotation())
sketch8.addGeometry(Part.LineSegment(App.Vector(2280, 73, 0), App.Vector(2330, 73, 0)), False)
sketch8.addGeometry(Part.LineSegment(App.Vector(2330, 73, 0), App.Vector(2330, 23, 0)), False)
sketch8.addGeometry(Part.LineSegment(App.Vector(2330, 23, 0), App.Vector(2280, 73, 0)), False)
sketch8.addGeometry(Part.LineSegment(App.Vector(0, 73, 0), App.Vector(50, 73, 0)), False)
sketch8.addGeometry(Part.LineSegment(App.Vector(50, 73, 0), App.Vector(0, 23, 0)), False)
sketch8.addGeometry(Part.LineSegment(App.Vector(0, 23, 0), App.Vector(0, 73, 0)), False)
sketch8.addConstraint(Sketcher.Constraint("Coincident", 0, 2, 1, 1))
sketch8.addConstraint(Sketcher.Constraint("Coincident", 1, 2, 2, 1))
sketch8.addConstraint(Sketcher.Constraint("Coincident", 2, 2, 0, 1))
sketch8.addConstraint(Sketcher.Constraint("Coincident", 3, 2, 4, 1))
sketch8.addConstraint(Sketcher.Constraint("Coincident", 4, 2, 5, 1))
sketch8.addConstraint(Sketcher.Constraint("Coincident", 5, 2, 3, 1))
sketch8.addConstraint(Sketcher.Constraint("Horizontal", 0))
sketch8.addConstraint(Sketcher.Constraint("Vertical", 1))
sketch8.addConstraint(Sketcher.Constraint("Horizontal", 3))
sketch8.addConstraint(Sketcher.Constraint("Vertical", 5))
sketch8.addConstraint(Sketcher.Constraint("PointOnObject", 4, 2, -2))
sketch8.addConstraint(Sketcher.Constraint("Perpendicular", 2, 4))
sketch8.addConstraint(Sketcher.Constraint("Horizontal", 2, 2, 3, 2))
sketch8.addConstraint(Sketcher.Constraint("Horizontal", 1, 2, 4, 2))
sketch8.addConstraint(Sketcher.Constraint("Equal", 0, 3))
sketch8.addConstraint(Sketcher.Constraint("DistanceX", 0, 1, 0, 2, 50.0))
sketch8.addConstraint(Sketcher.Constraint("DistanceX", -1, 1, 0, 2, 2330.0))
sketch8.addConstraint(Sketcher.Constraint("DistanceY", -1, 1, 0, 2, 73.151013))
sketch8.setExpression("Constraints[15]", "Params.sketch8_width")
pocket4 = body4.newObject("PartDesign::Pocket", "Pocket003")
pocket4.Profile = sketch8
pocket4.Type = "ThroughAll"
pocket4.Reversed = True
body5 = doc.addObject("PartDesign::Body", "Body004")

sketch9 = body5.newObject("Sketcher::SketchObject", "Sketch008")
sketch9.AttachmentSupport = (doc.getObject("XZ_Plane004"), [""])
sketch9.MapMode = "FlatFace"
sketch9.addGeometry(Part.ArcOfCircle(Part.Circle(App.Vector(21.3, -54, 0), App.Vector(0, 0, 1), 4), math.radians(0), math.radians(90)), False)
sketch9.addGeometry(Part.LineSegment(App.Vector(21.3, -50, 0), App.Vector(-20.7, -50, 0)), False)
sketch9.addGeometry(Part.ArcOfCircle(Part.Circle(App.Vector(-20.7, -54, 0), App.Vector(0, 0, 1), 4), math.radians(90), math.radians(180)), False)
sketch9.addGeometry(Part.LineSegment(App.Vector(-24.7, -54, 0), App.Vector(-24.7, -96, 0)), False)
sketch9.addGeometry(Part.ArcOfCircle(Part.Circle(App.Vector(-20.7, -96, 0), App.Vector(0, 0, 1), 4), math.radians(180), math.radians(270)), False)
sketch9.addGeometry(Part.LineSegment(App.Vector(-20.7, -100, 0), App.Vector(21.3, -100, 0)), False)
sketch9.addGeometry(Part.ArcOfCircle(Part.Circle(App.Vector(21.3, -96, 0), App.Vector(0, 0, 1), 4), math.radians(-90), math.radians(0)), False)
sketch9.addGeometry(Part.LineSegment(App.Vector(25.3, -96, 0), App.Vector(25.3, -54, 0)), False)
sketch9.addGeometry(Part.LineSegment(App.Vector(23.3, -98, 0), App.Vector(-22.7, -98, 0)), False)
sketch9.addGeometry(Part.LineSegment(App.Vector(-22.7, -98, 0), App.Vector(-22.7, -52, 0)), False)
sketch9.addGeometry(Part.LineSegment(App.Vector(-22.7, -52, 0), App.Vector(23.3, -52, 0)), False)
sketch9.addGeometry(Part.LineSegment(App.Vector(23.3, -52, 0), App.Vector(23.3, -98, 0)), False)
sketch9.addConstraint(Sketcher.Constraint("Tangent", 0, 2, 1, 1))
sketch9.addConstraint(Sketcher.Constraint("Tangent", 1, 2, 2, 1))
sketch9.addConstraint(Sketcher.Constraint("Tangent", 2, 2, 3, 1))
sketch9.addConstraint(Sketcher.Constraint("Tangent", 3, 2, 4, 1))
sketch9.addConstraint(Sketcher.Constraint("Tangent", 4, 2, 5, 1))
sketch9.addConstraint(Sketcher.Constraint("Tangent", 5, 2, 6, 1))
sketch9.addConstraint(Sketcher.Constraint("Tangent", 6, 2, 7, 1))
sketch9.addConstraint(Sketcher.Constraint("Tangent", 7, 2, 0, 1))
sketch9.addConstraint(Sketcher.Constraint("Coincident", 8, 2, 9, 1))
sketch9.addConstraint(Sketcher.Constraint("Coincident", 9, 2, 10, 1))
sketch9.addConstraint(Sketcher.Constraint("Coincident", 10, 2, 11, 1))
sketch9.addConstraint(Sketcher.Constraint("Coincident", 11, 2, 8, 1))
sketch9.addConstraint(Sketcher.Constraint("Horizontal", 1))
sketch9.addConstraint(Sketcher.Constraint("Vertical", 3))
sketch9.addConstraint(Sketcher.Constraint("Horizontal", 5))
sketch9.addConstraint(Sketcher.Constraint("Vertical", 7))
sketch9.addConstraint(Sketcher.Constraint("Horizontal", 8))
sketch9.addConstraint(Sketcher.Constraint("Vertical", 9))
sketch9.addConstraint(Sketcher.Constraint("Horizontal", 10))
sketch9.addConstraint(Sketcher.Constraint("Vertical", 11))
sketch9.addConstraint(Sketcher.Constraint("Equal", 0, 2))
sketch9.addConstraint(Sketcher.Constraint("Equal", 2, 4))
sketch9.addConstraint(Sketcher.Constraint("Equal", 4, 6))
sketch9.addConstraint(Sketcher.Constraint("Equal", 5, 3))
sketch9.addConstraint(Sketcher.Constraint("Equal", 10, 9))
sketch9.addConstraint(Sketcher.Constraint("Radius", 0, 4.0))
sketch9.addConstraint(Sketcher.Constraint("DistanceX", 1, 2, 1, 1, 42.0))
sketch9.addConstraint(Sketcher.Constraint("DistanceX", 8, 2, 8, 1, 46.0))
sketch9.addConstraint(Sketcher.Constraint("DistanceX", 8, 2, 4, 3, 2.0))
sketch9.addConstraint(Sketcher.Constraint("DistanceY", 8, 2, 4, 3, 2.0))
sketch9.addConstraint(Sketcher.Constraint("DistanceX", -1, 1, 0, 3, 21.25304))
sketch9.addConstraint(Sketcher.Constraint("DistanceY", 0, 3, -1, 1, 53.954797))
sketch9.setExpression("Constraints[25]", "Params.sketch9_radius")
sketch9.setExpression("Constraints[26]", "Params.sketch9_width")
sketch9.setExpression("Constraints[27]", "Params.sketch9_width2")
pad5 = body5.newObject("PartDesign::Pad", "Pad004")
pad5.Profile = sketch9
pad5.setExpression("Length", "Params.pad5_length")
body6 = doc.addObject("PartDesign::Body", "Body005")

sketch10 = body6.newObject("Sketcher::SketchObject", "Sketch009")
sketch10.AttachmentSupport = (doc.getObject("XZ_Plane005"), [""])
sketch10.MapMode = "FlatFace"
sketch10.addGeometry(Part.ArcOfCircle(Part.Circle(App.Vector(60.7, 93.1, 0), App.Vector(0, 0, 1), 4), math.radians(0), math.radians(90)), False)
sketch10.addGeometry(Part.LineSegment(App.Vector(60.7, 97.1, 0), App.Vector(18.7, 97.1, 0)), False)
sketch10.addGeometry(Part.ArcOfCircle(Part.Circle(App.Vector(18.7, 93.1, 0), App.Vector(0, 0, 1), 4), math.radians(90), math.radians(180)), False)
sketch10.addGeometry(Part.LineSegment(App.Vector(14.7, 93.1, 0), App.Vector(14.7, 51.1, 0)), False)
sketch10.addGeometry(Part.ArcOfCircle(Part.Circle(App.Vector(18.7, 51.1, 0), App.Vector(0, 0, 1), 4), math.radians(180), math.radians(270)), False)
sketch10.addGeometry(Part.LineSegment(App.Vector(18.7, 47.1, 0), App.Vector(60.7, 47.1, 0)), False)
sketch10.addGeometry(Part.ArcOfCircle(Part.Circle(App.Vector(60.7, 51.1, 0), App.Vector(0, 0, 1), 4), math.radians(-90), math.radians(0)), False)
sketch10.addGeometry(Part.LineSegment(App.Vector(64.7, 51.1, 0), App.Vector(64.7, 93.1, 0)), False)
sketch10.addGeometry(Part.LineSegment(App.Vector(62.7, 49.1, 0), App.Vector(16.7, 49.1, 0)), False)
sketch10.addGeometry(Part.LineSegment(App.Vector(16.7, 49.1, 0), App.Vector(16.7, 95.1, 0)), False)
sketch10.addGeometry(Part.LineSegment(App.Vector(16.7, 95.1, 0), App.Vector(62.7, 95.1, 0)), False)
sketch10.addGeometry(Part.LineSegment(App.Vector(62.7, 95.1, 0), App.Vector(62.7, 49.1, 0)), False)
sketch10.addConstraint(Sketcher.Constraint("Tangent", 0, 2, 1, 1))
sketch10.addConstraint(Sketcher.Constraint("Tangent", 1, 2, 2, 1))
sketch10.addConstraint(Sketcher.Constraint("Tangent", 2, 2, 3, 1))
sketch10.addConstraint(Sketcher.Constraint("Tangent", 3, 2, 4, 1))
sketch10.addConstraint(Sketcher.Constraint("Tangent", 4, 2, 5, 1))
sketch10.addConstraint(Sketcher.Constraint("Tangent", 5, 2, 6, 1))
sketch10.addConstraint(Sketcher.Constraint("Tangent", 6, 2, 7, 1))
sketch10.addConstraint(Sketcher.Constraint("Tangent", 7, 2, 0, 1))
sketch10.addConstraint(Sketcher.Constraint("Coincident", 8, 2, 9, 1))
sketch10.addConstraint(Sketcher.Constraint("Coincident", 9, 2, 10, 1))
sketch10.addConstraint(Sketcher.Constraint("Coincident", 10, 2, 11, 1))
sketch10.addConstraint(Sketcher.Constraint("Coincident", 11, 2, 8, 1))
sketch10.addConstraint(Sketcher.Constraint("Horizontal", 1))
sketch10.addConstraint(Sketcher.Constraint("Vertical", 3))
sketch10.addConstraint(Sketcher.Constraint("Horizontal", 5))
sketch10.addConstraint(Sketcher.Constraint("Vertical", 7))
sketch10.addConstraint(Sketcher.Constraint("Horizontal", 8))
sketch10.addConstraint(Sketcher.Constraint("Vertical", 9))
sketch10.addConstraint(Sketcher.Constraint("Horizontal", 10))
sketch10.addConstraint(Sketcher.Constraint("Vertical", 11))
sketch10.addConstraint(Sketcher.Constraint("Equal", 0, 2))
sketch10.addConstraint(Sketcher.Constraint("Equal", 2, 4))
sketch10.addConstraint(Sketcher.Constraint("Equal", 4, 6))
sketch10.addConstraint(Sketcher.Constraint("Equal", 5, 3))
sketch10.addConstraint(Sketcher.Constraint("Equal", 10, 9))
sketch10.addConstraint(Sketcher.Constraint("Radius", 0, 4.0))
sketch10.addConstraint(Sketcher.Constraint("DistanceX", 1, 2, 1, 1, 42.0))
sketch10.addConstraint(Sketcher.Constraint("DistanceX", 8, 2, 8, 1, 46.0))
sketch10.addConstraint(Sketcher.Constraint("DistanceX", 8, 2, 4, 3, 2.0))
sketch10.addConstraint(Sketcher.Constraint("DistanceY", 8, 2, 4, 3, 2.0))
sketch10.addConstraint(Sketcher.Constraint("DistanceX", -1, 1, 0, 3, 60.668735))
sketch10.addConstraint(Sketcher.Constraint("DistanceY", -1, 1, 0, 3, 93.082877))
sketch10.setExpression("Constraints[25]", "Params.sketch10_radius")
sketch10.setExpression("Constraints[26]", "Params.sketch10_width")
sketch10.setExpression("Constraints[27]", "Params.sketch10_width2")
pad6 = body6.newObject("PartDesign::Pad", "Pad005")
pad6.Profile = sketch10
pad6.setExpression("Length", "Params.pad6_length")
body7 = doc.addObject("PartDesign::Body", "Body006")

sketch11 = body7.newObject("Sketcher::SketchObject", "Sketch010")
sketch11.AttachmentSupport = (doc.getObject("XZ_Plane006"), [""])
sketch11.MapMode = "FlatFace"
sketch11.addGeometry(Part.ArcOfCircle(Part.Circle(App.Vector(-11.9, 93.1, 0), App.Vector(0, 0, 1), 4), math.radians(0), math.radians(90)), False)
sketch11.addGeometry(Part.LineSegment(App.Vector(-11.9, 97.1, 0), App.Vector(-53.9, 97.1, 0)), False)
sketch11.addGeometry(Part.ArcOfCircle(Part.Circle(App.Vector(-53.9, 93.1, 0), App.Vector(0, 0, 1), 4), math.radians(90), math.radians(180)), False)
sketch11.addGeometry(Part.LineSegment(App.Vector(-57.9, 93.1, 0), App.Vector(-57.9, 51.1, 0)), False)
sketch11.addGeometry(Part.ArcOfCircle(Part.Circle(App.Vector(-53.9, 51.1, 0), App.Vector(0, 0, 1), 4), math.radians(180), math.radians(270)), False)
sketch11.addGeometry(Part.LineSegment(App.Vector(-53.9, 47.1, 0), App.Vector(-11.9, 47.1, 0)), False)
sketch11.addGeometry(Part.ArcOfCircle(Part.Circle(App.Vector(-11.9, 51.1, 0), App.Vector(0, 0, 1), 4), math.radians(-90), math.radians(0)), False)
sketch11.addGeometry(Part.LineSegment(App.Vector(-7.9, 51.1, 0), App.Vector(-7.9, 93.1, 0)), False)
sketch11.addGeometry(Part.LineSegment(App.Vector(-9.9, 49.1, 0), App.Vector(-55.9, 49.1, 0)), False)
sketch11.addGeometry(Part.LineSegment(App.Vector(-55.9, 49.1, 0), App.Vector(-55.9, 95.1, 0)), False)
sketch11.addGeometry(Part.LineSegment(App.Vector(-55.9, 95.1, 0), App.Vector(-9.9, 95.1, 0)), False)
sketch11.addGeometry(Part.LineSegment(App.Vector(-9.9, 95.1, 0), App.Vector(-9.9, 49.1, 0)), False)
sketch11.addConstraint(Sketcher.Constraint("Tangent", 0, 2, 1, 1))
sketch11.addConstraint(Sketcher.Constraint("Tangent", 1, 2, 2, 1))
sketch11.addConstraint(Sketcher.Constraint("Tangent", 2, 2, 3, 1))
sketch11.addConstraint(Sketcher.Constraint("Tangent", 3, 2, 4, 1))
sketch11.addConstraint(Sketcher.Constraint("Tangent", 4, 2, 5, 1))
sketch11.addConstraint(Sketcher.Constraint("Tangent", 5, 2, 6, 1))
sketch11.addConstraint(Sketcher.Constraint("Tangent", 6, 2, 7, 1))
sketch11.addConstraint(Sketcher.Constraint("Tangent", 7, 2, 0, 1))
sketch11.addConstraint(Sketcher.Constraint("Coincident", 8, 2, 9, 1))
sketch11.addConstraint(Sketcher.Constraint("Coincident", 9, 2, 10, 1))
sketch11.addConstraint(Sketcher.Constraint("Coincident", 10, 2, 11, 1))
sketch11.addConstraint(Sketcher.Constraint("Coincident", 11, 2, 8, 1))
sketch11.addConstraint(Sketcher.Constraint("Horizontal", 1))
sketch11.addConstraint(Sketcher.Constraint("Vertical", 3))
sketch11.addConstraint(Sketcher.Constraint("Horizontal", 5))
sketch11.addConstraint(Sketcher.Constraint("Vertical", 7))
sketch11.addConstraint(Sketcher.Constraint("Horizontal", 8))
sketch11.addConstraint(Sketcher.Constraint("Vertical", 9))
sketch11.addConstraint(Sketcher.Constraint("Horizontal", 10))
sketch11.addConstraint(Sketcher.Constraint("Vertical", 11))
sketch11.addConstraint(Sketcher.Constraint("Equal", 0, 2))
sketch11.addConstraint(Sketcher.Constraint("Equal", 2, 4))
sketch11.addConstraint(Sketcher.Constraint("Equal", 4, 6))
sketch11.addConstraint(Sketcher.Constraint("Equal", 5, 3))
sketch11.addConstraint(Sketcher.Constraint("Equal", 10, 9))
sketch11.addConstraint(Sketcher.Constraint("Radius", 0, 4.0))
sketch11.addConstraint(Sketcher.Constraint("DistanceX", 1, 2, 1, 1, 42.0))
sketch11.addConstraint(Sketcher.Constraint("DistanceX", 8, 2, 8, 1, 46.0))
sketch11.addConstraint(Sketcher.Constraint("DistanceX", 8, 2, 4, 3, 2.0))
sketch11.addConstraint(Sketcher.Constraint("DistanceY", 8, 2, 4, 3, 2.0))
sketch11.addConstraint(Sketcher.Constraint("DistanceX", 0, 3, -1, 1, 11.877184))
sketch11.addConstraint(Sketcher.Constraint("DistanceY", -1, 1, 0, 3, 93.082877))
sketch11.setExpression("Constraints[25]", "Params.sketch11_radius")
sketch11.setExpression("Constraints[26]", "Params.sketch11_width")
sketch11.setExpression("Constraints[27]", "Params.sketch11_width2")
pad7 = body7.newObject("PartDesign::Pad", "Pad006")
pad7.Profile = sketch11
pad7.setExpression("Length", "Params.pad7_length")

sketch12 = body7.newObject("Sketcher::SketchObject", "Sketch011")
sketch12.AttachmentSupport = (doc.getObject("XY_Plane006"), [""])
sketch12.MapMode = "FlatFace"
sketch12.AttachmentOffset = App.Placement(App.Vector(0, 0, 97.082877), App.Rotation())
sketch12.addGeometry(Part.LineSegment(App.Vector(-57.9, -1154, 0), App.Vector(-57.9, -1244.2, 0)), False)
sketch12.addGeometry(Part.LineSegment(App.Vector(-57.9, -1244.2, 0), App.Vector(-7.9, -1244.2, 0)), False)
sketch12.addGeometry(Part.LineSegment(App.Vector(-7.9, -1244.2, 0), App.Vector(-57.9, -1154, 0)), False)
sketch12.addGeometry(Part.LineSegment(App.Vector(-57.9, 0, 0), App.Vector(-57.9, -27.7, 0)), False)
sketch12.addGeometry(Part.LineSegment(App.Vector(-57.9, -27.7, 0), App.Vector(-53.9, -25.5, 0)), False)
sketch12.addGeometry(Part.LineSegment(App.Vector(-53.9, -25.5, 0), App.Vector(-11.9, -2.2, 0)), False)
sketch12.addGeometry(Part.LineSegment(App.Vector(-11.9, -2.2, 0), App.Vector(-7.9, 0, 0)), False)
sketch12.addGeometry(Part.LineSegment(App.Vector(-7.9, 0, 0), App.Vector(-57.9, 0, 0)), False)
sketch12.addConstraint(Sketcher.Constraint("Coincident", 0, 2, 1, 1))
sketch12.addConstraint(Sketcher.Constraint("Coincident", 1, 2, 2, 1))
sketch12.addConstraint(Sketcher.Constraint("Coincident", 2, 2, 0, 1))
sketch12.addConstraint(Sketcher.Constraint("Coincident", 3, 2, 4, 1))
sketch12.addConstraint(Sketcher.Constraint("Coincident", 4, 2, 5, 1))
sketch12.addConstraint(Sketcher.Constraint("Coincident", 5, 2, 6, 1))
sketch12.addConstraint(Sketcher.Constraint("Coincident", 6, 2, 7, 1))
sketch12.addConstraint(Sketcher.Constraint("Coincident", 7, 2, 3, 1))
sketch12.addConstraint(Sketcher.Constraint("Vertical", 0))
sketch12.addConstraint(Sketcher.Constraint("Horizontal", 1))
sketch12.addConstraint(Sketcher.Constraint("Vertical", 3))
sketch12.addConstraint(Sketcher.Constraint("Horizontal", 7))
sketch12.addConstraint(Sketcher.Constraint("PointOnObject", 6, 2, -1))
sketch12.addConstraint(Sketcher.Constraint("Perpendicular", 2, 4))
sketch12.addConstraint(Sketcher.Constraint("Parallel", 4, 5))
sketch12.addConstraint(Sketcher.Constraint("Parallel", 5, 6))
sketch12.addConstraint(Sketcher.Constraint("Vertical", 2, 2, 3, 2))
sketch12.addConstraint(Sketcher.Constraint("Vertical", 1, 2, 6, 2))
sketch12.addConstraint(Sketcher.Constraint("Equal", 4, 6))
sketch12.addConstraint(Sketcher.Constraint("DistanceX", 1, 1, 1, 2, 50.0))
sketch12.addConstraint(Sketcher.Constraint("Angle", 2, Q("119 deg")))
sketch12.addConstraint(Sketcher.Constraint("DistanceX", 3, 2, 4, 2, 4.0))
sketch12.addConstraint(Sketcher.Constraint("DistanceY", 0, 2, -1, 1, 1244.227))
sketch12.addConstraint(Sketcher.Constraint("DistanceX", 0, 2, -1, 1, 57.877184))
sketch12.setExpression("Constraints[19]", "Params.sketch12_width")
pocket5 = body7.newObject("PartDesign::Pocket", "Pocket004")
pocket5.Profile = sketch12
pocket5.Type = "ThroughAll"
body8 = doc.addObject("PartDesign::Body", "Body007")
doc.recompute()

mirroring = doc.addObject("Part::Mirroring", "Mirroring")
mirroring.Source = body7
mirroring.Base = App.Vector(-57.877184, -590.870032, 72.082877)
mirroring.Normal = App.Vector(-1, 0, 0)
body8.BaseFeature = mirroring
doc.recompute()
body6.Visibility = False
mirroring.Visibility = False

doc.recompute()
